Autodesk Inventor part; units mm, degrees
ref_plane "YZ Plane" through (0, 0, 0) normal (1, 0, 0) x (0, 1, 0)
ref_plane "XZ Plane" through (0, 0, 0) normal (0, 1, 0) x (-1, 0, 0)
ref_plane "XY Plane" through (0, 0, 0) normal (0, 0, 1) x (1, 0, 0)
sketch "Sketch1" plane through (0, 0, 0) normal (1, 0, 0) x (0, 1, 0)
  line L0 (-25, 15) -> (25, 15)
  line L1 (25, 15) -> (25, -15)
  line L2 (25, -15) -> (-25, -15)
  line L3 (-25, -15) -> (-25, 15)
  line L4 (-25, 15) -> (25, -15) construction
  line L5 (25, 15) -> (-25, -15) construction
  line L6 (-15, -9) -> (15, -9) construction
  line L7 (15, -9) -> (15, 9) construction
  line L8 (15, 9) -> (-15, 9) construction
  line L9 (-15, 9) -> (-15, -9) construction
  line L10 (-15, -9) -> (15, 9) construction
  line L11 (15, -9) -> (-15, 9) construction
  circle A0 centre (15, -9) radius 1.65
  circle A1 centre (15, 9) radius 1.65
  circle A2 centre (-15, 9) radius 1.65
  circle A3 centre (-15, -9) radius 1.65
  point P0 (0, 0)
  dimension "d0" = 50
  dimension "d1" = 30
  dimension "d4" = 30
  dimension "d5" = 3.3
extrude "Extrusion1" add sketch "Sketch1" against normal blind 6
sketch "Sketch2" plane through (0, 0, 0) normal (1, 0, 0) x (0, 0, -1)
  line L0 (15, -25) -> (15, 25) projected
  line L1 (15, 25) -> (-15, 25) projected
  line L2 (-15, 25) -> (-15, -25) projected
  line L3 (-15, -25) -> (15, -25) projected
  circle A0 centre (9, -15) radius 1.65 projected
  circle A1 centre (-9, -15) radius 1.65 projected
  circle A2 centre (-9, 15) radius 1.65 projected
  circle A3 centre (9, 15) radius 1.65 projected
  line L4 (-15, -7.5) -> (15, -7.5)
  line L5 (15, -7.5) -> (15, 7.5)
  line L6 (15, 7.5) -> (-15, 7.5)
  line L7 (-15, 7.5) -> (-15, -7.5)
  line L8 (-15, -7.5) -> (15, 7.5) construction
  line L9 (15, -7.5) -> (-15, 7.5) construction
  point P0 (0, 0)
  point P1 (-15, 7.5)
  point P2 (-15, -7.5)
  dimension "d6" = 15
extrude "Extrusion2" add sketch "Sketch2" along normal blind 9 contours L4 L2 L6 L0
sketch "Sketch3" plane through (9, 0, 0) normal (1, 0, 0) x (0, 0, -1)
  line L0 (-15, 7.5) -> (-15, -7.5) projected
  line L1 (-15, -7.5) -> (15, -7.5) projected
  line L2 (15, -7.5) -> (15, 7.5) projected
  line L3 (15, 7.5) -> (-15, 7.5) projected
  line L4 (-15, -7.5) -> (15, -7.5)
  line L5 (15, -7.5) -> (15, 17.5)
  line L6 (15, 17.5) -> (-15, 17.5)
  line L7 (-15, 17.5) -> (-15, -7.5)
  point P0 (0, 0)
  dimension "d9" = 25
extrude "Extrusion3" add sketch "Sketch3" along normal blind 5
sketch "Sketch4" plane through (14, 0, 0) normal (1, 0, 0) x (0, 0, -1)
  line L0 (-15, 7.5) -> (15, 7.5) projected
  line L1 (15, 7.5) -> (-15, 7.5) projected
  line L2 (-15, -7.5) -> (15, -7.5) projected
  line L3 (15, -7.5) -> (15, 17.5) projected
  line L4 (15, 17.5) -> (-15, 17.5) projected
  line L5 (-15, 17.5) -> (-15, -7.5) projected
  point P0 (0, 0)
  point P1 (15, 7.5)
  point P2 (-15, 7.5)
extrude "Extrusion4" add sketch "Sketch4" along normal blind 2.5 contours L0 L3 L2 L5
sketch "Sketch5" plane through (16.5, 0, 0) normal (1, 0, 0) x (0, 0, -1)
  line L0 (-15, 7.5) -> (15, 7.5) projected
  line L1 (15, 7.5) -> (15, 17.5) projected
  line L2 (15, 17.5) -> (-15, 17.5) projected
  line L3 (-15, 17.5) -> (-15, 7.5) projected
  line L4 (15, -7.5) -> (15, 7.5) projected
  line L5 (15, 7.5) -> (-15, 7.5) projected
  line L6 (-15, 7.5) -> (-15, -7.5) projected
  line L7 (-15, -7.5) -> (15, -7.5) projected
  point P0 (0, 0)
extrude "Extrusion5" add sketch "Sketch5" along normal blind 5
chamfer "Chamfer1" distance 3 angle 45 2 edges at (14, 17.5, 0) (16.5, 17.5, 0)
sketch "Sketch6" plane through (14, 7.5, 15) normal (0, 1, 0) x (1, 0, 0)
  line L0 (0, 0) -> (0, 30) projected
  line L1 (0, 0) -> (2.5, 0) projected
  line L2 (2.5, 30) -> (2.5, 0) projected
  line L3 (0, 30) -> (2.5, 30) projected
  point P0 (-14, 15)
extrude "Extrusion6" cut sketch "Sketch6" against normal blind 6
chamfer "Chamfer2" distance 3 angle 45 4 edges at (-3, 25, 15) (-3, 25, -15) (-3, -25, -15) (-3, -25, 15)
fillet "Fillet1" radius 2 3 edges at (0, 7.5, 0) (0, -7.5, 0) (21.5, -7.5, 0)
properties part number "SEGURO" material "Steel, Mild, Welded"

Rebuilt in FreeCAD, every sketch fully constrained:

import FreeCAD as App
import Part
import Sketcher
Q = App.Units.Quantity


def edges_at(feature, points):
    """Names of the edges that pass closest to the given points."""
    edges = feature.Shape.Edges
    near = lambda p: min(range(len(edges)), key=lambda i: edges[i].distToShape(Part.Vertex(*p))[0])
    return sorted({f"Edge{near(p) + 1}" for p in points})


def add_polygon(sketch, points):
    """Adds a closed chain of lines whose ends are joined by coincident constraints."""
    first, n = sketch.GeometryCount, len(points)
    for a, b in zip(points, points[1:] + points[:1]):
        sketch.addGeometry(Part.LineSegment(App.Vector(*a, 0), App.Vector(*b, 0)), False)
    for i in range(n):
        sketch.addConstraint(Sketcher.Constraint("Coincident", first + i, 2, first + (i + 1) % n, 1))

doc = App.newDocument("Part")
body = doc.addObject("PartDesign::Body", "Body")

# Sketch on YZ plane
sketch1 = doc.addObject("Sketcher::SketchObject", "Sketch")
body.addObject(sketch1)
sketch1.AttachmentSupport = (doc.YZ_Plane, [""])
sketch1.MapMode = "FlatFace"
add_polygon(sketch1, [(25, 15), (-25, 15), (-25, -15), (25, -15)])  # lines 0-3
sketch1.addGeometry(Part.Circle(App.Vector(-15, -9, 0), App.Vector(0, 0, 1), 1.6), False)  # 4
sketch1.addGeometry(Part.Circle(App.Vector(15, -9, 0), App.Vector(0, 0, 1), 1.6), False)  # 5
sketch1.addGeometry(Part.Circle(App.Vector(-15, 9, 0), App.Vector(0, 0, 1), 1.6), False)  # 6
sketch1.addGeometry(Part.Circle(App.Vector(15, 9, 0), App.Vector(0, 0, 1), 1.6), False)  # 7
sketch1.addConstraint(Sketcher.Constraint("Horizontal", 0))
sketch1.addConstraint(Sketcher.Constraint("Vertical", 1))
sketch1.addConstraint(Sketcher.Constraint("Horizontal", 2))
sketch1.addConstraint(Sketcher.Constraint("Vertical", 3))
sketch1.addConstraint(Sketcher.Constraint("Equal", 4, 5))
sketch1.addConstraint(Sketcher.Constraint("Equal", 5, 6))
sketch1.addConstraint(Sketcher.Constraint("Equal", 6, 7))
sketch1.addConstraint(Sketcher.Constraint("Symmetric", 5, 3, 6, 3, -1, 1))
sketch1.addConstraint(Sketcher.Constraint("Symmetric", 4, 3, 7, 3, -1, 1))
sketch1.addConstraint(Sketcher.Constraint("Symmetric", 0, 2, 2, 2, -1, 1))
sketch1.addConstraint(Sketcher.Constraint("Symmetric", 4, 3, 5, 3, -2))
sketch1.addConstraint(Sketcher.Constraint("Diameter", 4, Q("3.3 mm")))
sketch1.addConstraint(Sketcher.Constraint("DistanceX", 0, 2, 0, 1, Q("50 mm")))
sketch1.addConstraint(Sketcher.Constraint("DistanceY", 1, 2, 1, 1, Q("30 mm")))
sketch1.addConstraint(Sketcher.Constraint("DistanceX", 4, 3, 5, 3, Q("30 mm")))
sketch1.addConstraint(Sketcher.Constraint("DistanceY", 4, 3, -1, 1, Q("9 mm")))
pad1 = doc.addObject("PartDesign::Pad", "Pad")
body.addObject(pad1)
pad1.Profile = sketch1
pad1.Length = 6
pad1.Reversed = True

# Sketch on YZ plane
sketch2 = doc.addObject("Sketcher::SketchObject", "Sketch001")
body.addObject(sketch2)
sketch2.AttachmentSupport = (doc.YZ_Plane, [""])
sketch2.MapMode = "FlatFace"
add_polygon(sketch2, [(-8, 15), (-8, -15), (8, -15), (8, 15)])  # lines 0-3
sketch2.addConstraint(Sketcher.Constraint("Vertical", 0))
sketch2.addConstraint(Sketcher.Constraint("Horizontal", 1))
sketch2.addConstraint(Sketcher.Constraint("Vertical", 2))
sketch2.addConstraint(Sketcher.Constraint("Horizontal", 3))
sketch2.addConstraint(Sketcher.Constraint("Symmetric", 0, 2, 2, 2, -1, 1))
sketch2.addConstraint(Sketcher.Constraint("DistanceX", 1, 1, 1, 2, Q("15 mm")))
sketch2.addConstraint(Sketcher.Constraint("DistanceY", 0, 2, -1, 1, Q("15 mm")))
pad2 = doc.addObject("PartDesign::Pad", "Pad001")
body.addObject(pad2)
pad2.Profile = sketch2
pad2.Length = 9

# Sketch on YZ plane
sketch3 = doc.addObject("Sketcher::SketchObject", "Sketch002")
body.addObject(sketch3)
sketch3.AttachmentSupport = (doc.YZ_Plane, [""])
sketch3.MapMode = "FlatFace"
sketch3.AttachmentOffset = App.Placement(App.Vector(0, 0, 9), App.Rotation())
add_polygon(sketch3, [(-8, -15), (18, -15), (18, 15), (-8, 15)])  # lines 0-3
sketch3.addConstraint(Sketcher.Constraint("Horizontal", 0))
sketch3.addConstraint(Sketcher.Constraint("Vertical", 1))
sketch3.addConstraint(Sketcher.Constraint("Horizontal", 2))
sketch3.addConstraint(Sketcher.Constraint("Vertical", 3))
sketch3.addConstraint(Sketcher.Constraint("DistanceX", 0, 1, 0, 2, Q("25 mm")))
sketch3.addConstraint(Sketcher.Constraint("DistanceY", 1, 1, 1, 2, Q("30 mm")))
sketch3.addConstraint(Sketcher.Constraint("DistanceY", 0, 2, -1, 1, Q("15 mm")))
sketch3.addConstraint(Sketcher.Constraint("DistanceX", -1, 1, 0, 2, Q("17.5 mm")))
pad3 = doc.addObject("PartDesign::Pad", "Pad002")
body.addObject(pad3)
pad3.Profile = sketch3
pad3.Length = 5

# Sketch on YZ plane
sketch4 = doc.addObject("Sketcher::SketchObject", "Sketch003")
body.addObject(sketch4)
sketch4.AttachmentSupport = (doc.YZ_Plane, [""])
sketch4.MapMode = "FlatFace"
sketch4.AttachmentOffset = App.Placement(App.Vector(0, 0, 14), App.Rotation())
add_polygon(sketch4, [(8, -15), (8, 15), (-8, 15), (-8, -15)])  # lines 0-3
sketch4.addConstraint(Sketcher.Constraint("Vertical", 0))
sketch4.addConstraint(Sketcher.Constraint("Horizontal", 1))
sketch4.addConstraint(Sketcher.Constraint("Vertical", 2))
sketch4.addConstraint(Sketcher.Constraint("Horizontal", 3))
sketch4.addConstraint(Sketcher.Constraint("Symmetric", 0, 2, 2, 2, -1, 1))
sketch4.addConstraint(Sketcher.Constraint("DistanceX", 1, 2, 1, 1, Q("15 mm")))
sketch4.addConstraint(Sketcher.Constraint("DistanceY", 0, 1, 0, 2, Q("30 mm")))
pad4 = doc.addObject("PartDesign::Pad", "Pad003")
body.addObject(pad4)
pad4.Profile = sketch4
pad4.Length = 2.5

# Sketch on YZ plane
sketch5 = doc.addObject("Sketcher::SketchObject", "Sketch004")
body.addObject(sketch5)
sketch5.AttachmentSupport = (doc.YZ_Plane, [""])
sketch5.MapMode = "FlatFace"
sketch5.AttachmentOffset = App.Placement(App.Vector(0, 0, 16.5), App.Rotation())
add_polygon(sketch5, [(18, 15), (-8, 15), (-8, -15), (18, -15)])  # lines 0-3
sketch5.addConstraint(Sketcher.Constraint("Horizontal", 0))
sketch5.addConstraint(Sketcher.Constraint("Vertical", 1))
sketch5.addConstraint(Sketcher.Constraint("Horizontal", 2))
sketch5.addConstraint(Sketcher.Constraint("Vertical", 3))
sketch5.addConstraint(Sketcher.Constraint("DistanceX", 0, 2, 0, 1, Q("25 mm")))
sketch5.addConstraint(Sketcher.Constraint("DistanceY", 1, 2, 1, 1, Q("30 mm")))
sketch5.addConstraint(Sketcher.Constraint("DistanceY", -1, 1, 0, 2, Q("15 mm")))
sketch5.addConstraint(Sketcher.Constraint("DistanceX", 0, 2, -1, 1, Q("7.5 mm")))
pad5 = doc.addObject("PartDesign::Pad", "Pad004")
body.addObject(pad5)
pad5.Profile = sketch5
pad5.Length = 5
doc.recompute()

chamfer = doc.addObject("PartDesign::Chamfer", "Chamfer")
body.addObject(chamfer)
chamfer.Base = (pad5, edges_at(pad5, [(14, 17.5, 0), (16.5, 17.5, 0)]))
chamfer.Size = 3

# Sketch on XZ plane
sketch6 = doc.addObject("Sketcher::SketchObject", "Sketch005")
body.addObject(sketch6)
sketch6.AttachmentSupport = (doc.XZ_Plane, [""])
sketch6.MapMode = "FlatFace"
sketch6.AttachmentOffset = App.Placement(App.Vector(0, 0, -7.5), App.Rotation())
add_polygon(sketch6, [(14, -15), (14, 15), (16.5, 15), (16.5, -15)])  # lines 0-3
sketch6.addConstraint(Sketcher.Constraint("Vertical", 0))
sketch6.addConstraint(Sketcher.Constraint("Horizontal", 1))
sketch6.addConstraint(Sketcher.Constraint("Vertical", 2))
sketch6.addConstraint(Sketcher.Constraint("Horizontal", 3))
sketch6.addConstraint(Sketcher.Constraint("DistanceY", 0, 1, 0, 2, Q("30 mm")))
sketch6.addConstraint(Sketcher.Constraint("DistanceX", 1, 1, 1, 2, Q("2.5 mm")))
sketch6.addConstraint(Sketcher.Constraint("DistanceX", -1, 1, 0, 2, Q("14 mm")))
sketch6.addConstraint(Sketcher.Constraint("DistanceY", -1, 1, 0, 2, Q("15 mm")))
pocket1 = doc.addObject("PartDesign::Pocket", "Pocket")
body.addObject(pocket1)
pocket1.Profile = sketch6
pocket1.Length = 6
pocket1.Reversed = True
doc.recompute()

chamfer2 = doc.addObject("PartDesign::Chamfer", "Chamfer001")
body.addObject(chamfer2)
chamfer2.Base = (pocket1, edges_at(pocket1, [
    (-3, 25, 15),
    (-3, 25, -15),
    (-3, -25, -15),
    (-3, -25, 15),
]))
chamfer2.Size = 3
doc.recompute()

fillet = doc.addObject("PartDesign::Fillet", "Fillet")
body.addObject(fillet)
fillet.Base = (chamfer2, edges_at(chamfer2, [(0, 7.5, 0), (0, -7.5, 0), (21.5, -7.5, 0)]))
fillet.Radius = 2

doc.recompute()
